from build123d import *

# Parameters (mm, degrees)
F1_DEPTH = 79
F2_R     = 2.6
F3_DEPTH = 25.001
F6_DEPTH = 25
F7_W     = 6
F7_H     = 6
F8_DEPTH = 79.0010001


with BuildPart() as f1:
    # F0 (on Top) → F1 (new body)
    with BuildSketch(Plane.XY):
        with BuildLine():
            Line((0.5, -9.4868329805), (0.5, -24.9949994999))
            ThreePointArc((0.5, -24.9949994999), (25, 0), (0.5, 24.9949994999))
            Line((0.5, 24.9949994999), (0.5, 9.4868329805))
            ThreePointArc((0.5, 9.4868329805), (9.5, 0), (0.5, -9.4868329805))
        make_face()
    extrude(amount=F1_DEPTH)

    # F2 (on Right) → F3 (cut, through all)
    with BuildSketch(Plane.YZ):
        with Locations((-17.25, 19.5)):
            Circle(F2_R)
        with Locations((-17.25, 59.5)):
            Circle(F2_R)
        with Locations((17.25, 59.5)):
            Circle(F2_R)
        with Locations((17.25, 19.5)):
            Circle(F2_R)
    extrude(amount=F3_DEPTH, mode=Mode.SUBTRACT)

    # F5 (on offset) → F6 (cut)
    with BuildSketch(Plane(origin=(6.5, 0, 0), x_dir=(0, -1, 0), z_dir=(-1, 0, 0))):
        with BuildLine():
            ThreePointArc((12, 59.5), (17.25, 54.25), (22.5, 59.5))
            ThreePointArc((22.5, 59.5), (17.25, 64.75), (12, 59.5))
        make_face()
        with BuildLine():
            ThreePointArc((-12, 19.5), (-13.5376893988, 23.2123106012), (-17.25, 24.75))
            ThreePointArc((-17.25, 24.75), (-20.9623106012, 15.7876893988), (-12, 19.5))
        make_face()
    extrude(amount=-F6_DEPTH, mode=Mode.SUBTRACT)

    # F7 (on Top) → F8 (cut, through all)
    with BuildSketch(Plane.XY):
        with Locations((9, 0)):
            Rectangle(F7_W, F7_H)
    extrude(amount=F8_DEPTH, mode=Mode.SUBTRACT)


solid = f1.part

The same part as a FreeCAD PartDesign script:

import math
import FreeCAD as App
import Part
import Sketcher
from FreeCAD import Vector
Q = App.Units.Quantity

doc = App.newDocument("Part")
params = doc.addObject("Spreadsheet::Sheet", "Params")
for row, (alias, value) in enumerate([
    ("sketch1_radius", "25 mm"),
    ("sketch1_radius2", "9.5 mm"),
    ("pad1_length", "79 mm"),
    ("sketch2_diameter", "5.2 mm"),
    ("sketch3_diameter", "10.5 mm"),
    ("pocket2_length", "25 mm"),
    ("sketch4_width", "6 mm"),
], start=1):
    params.set(f"A{row}", alias)
    params.set(f"B{row}", "=" + value)
    params.setAlias(f"B{row}", alias)

body = doc.addObject("PartDesign::Body", "Body")

sketch1 = doc.addObject("Sketcher::SketchObject", "Sketch")
body.addObject(sketch1)
sketch1.AttachmentSupport = (doc.XY_Plane, [""])
sketch1.MapMode = "FlatFace"
sketch1.addGeometry([
    Part.LineSegment(Vector(0, -9, 0), Vector(0, -25, 0)),
    Part.ArcOfCircle(Part.Circle(Vector(0, 0, 0), Vector(0, 0, 1), 25), math.radians(-89), math.radians(89)),
    Part.LineSegment(Vector(0, 25, 0), Vector(0, 9, 0)),
    Part.ArcOfCircle(Part.Circle(Vector(0, 0, 0), Vector(0, 0, 1), 10), math.radians(-87), math.radians(87)),
], False)
sketch1.addConstraint([
    Sketcher.Constraint("Coincident", 0, 2, 1, 1),
    Sketcher.Constraint("Coincident", 1, 2, 2, 1),
    Sketcher.Constraint("Coincident", 2, 2, 3, 2),
    Sketcher.Constraint("Coincident", 3, 1, 0, 1),
    Sketcher.Constraint("Vertical", 0),
    Sketcher.Constraint("Vertical", 2),
    Sketcher.Constraint("Coincident", 1, 3, -1, 1),
    Sketcher.Constraint("Coincident", 3, 3, -1, 1),
    Sketcher.Constraint("Vertical", 0, 2, 1, 2),
    Sketcher.Constraint("Radius", 1, Q("25 mm")),
    Sketcher.Constraint("Radius", 3, Q("9.5 mm")),
    Sketcher.Constraint("DistanceX", -1, 1, 0, 2, Q("0.5 mm")),
])
sketch1.setExpression("Constraints[9]", "Params.sketch1_radius")
sketch1.setExpression("Constraints[10]", "Params.sketch1_radius2")
pad1 = doc.addObject("PartDesign::Pad", "Pad")
body.addObject(pad1)
pad1.Profile = sketch1
pad1.setExpression("Length", "Params.pad1_length")

sketch2 = doc.addObject("Sketcher::SketchObject", "Sketch001")
body.addObject(sketch2)
sketch2.AttachmentSupport = (doc.YZ_Plane, [""])
sketch2.MapMode = "FlatFace"
sketch2.addGeometry([
    Part.Circle(Vector(-17.2, 19.5, 0), Vector(0, 0, 1), 2.6),
    Part.Circle(Vector(-17.2, 59.5, 0), Vector(0, 0, 1), 2.6),
    Part.Circle(Vector(17.2, 59.5, 0), Vector(0, 0, 1), 2.6),
    Part.Circle(Vector(17.2, 19.5, 0), Vector(0, 0, 1), 2.6),
], False)
sketch2.addConstraint([
    Sketcher.Constraint("Equal", 0, 1),
    Sketcher.Constraint("Equal", 1, 2),
    Sketcher.Constraint("Equal", 2, 3),
    Sketcher.Constraint("Symmetric", 1, 3, 2, 3, -2),
    Sketcher.Constraint("Symmetric", 0, 3, 3, 3, -2),
    Sketcher.Constraint("Vertical", 0, 3, 1, 3),
    Sketcher.Constraint("Diameter", 0, Q("5.2 mm")),
    Sketcher.Constraint("DistanceY", 0, 3, 1, 3, Q("40 mm")),
    Sketcher.Constraint("DistanceY", -1, 1, 0, 3, Q("19.5 mm")),
    Sketcher.Constraint("DistanceX", 1, 3, 2, 3, Q("34.5 mm")),
])
sketch2.setExpression("Constraints[6]", "Params.sketch2_diameter")
pocket1 = doc.addObject("PartDesign::Pocket", "Pocket")
body.addObject(pocket1)
pocket1.Profile = sketch2
pocket1.Type = "ThroughAll"
pocket1.Reversed = True

sketch3 = doc.addObject("Sketcher::SketchObject", "Sketch002")
body.addObject(sketch3)
sketch3.AttachmentSupport = (doc.YZ_Plane, [""])
sketch3.MapMode = "FlatFace"
sketch3.AttachmentOffset = App.Placement(Vector(0, 0, 6.5), App.Rotation())
sketch3.addGeometry([
    Part.Circle(Vector(-17, 60, 0), Vector(0, 0, 1), 5),
    Part.ArcOfCircle(Part.Circle(Vector(17, 20, 0), Vector(0, 0, 1), 5), math.radians(90), math.radians(180)),
    Part.ArcOfCircle(Part.Circle(Vector(17, 20, 0), Vector(0, 0, 1), 5), math.radians(180), math.radians(450)),
], False)
sketch3.addConstraint([
    Sketcher.Constraint("Tangent", 1, 1, 2, 2),
    Sketcher.Constraint("Coincident", 2, 1, 1, 2),
    Sketcher.Constraint("Equal", 0, 1),
    Sketcher.Constraint("Horizontal", 1, 3, 2, 1),
    Sketcher.Constraint("Vertical", 2, 3, 1, 1),
    Sketcher.Constraint("Diameter", 0, Q("10.5 mm")),
    Sketcher.Constraint("DistanceX", -1, 1, 2, 1, Q("12 mm")),
    Sketcher.Constraint("DistanceY", 1, 3, 0, 3, Q("40 mm")),
    Sketcher.Constraint("DistanceY", -1, 1, 0, 3, Q("59.5 mm")),
    Sketcher.Constraint("DistanceX", 0, 3, 1, 3, Q("34.5 mm")),
])
sketch3.setExpression("Constraints[5]", "Params.sketch3_diameter")
pocket2 = doc.addObject("PartDesign::Pocket", "Pocket001")
body.addObject(pocket2)
pocket2.Profile = sketch3
pocket2.setExpression("Length", "Params.pocket2_length")
pocket2.Reversed = True

sketch4 = doc.addObject("Sketcher::SketchObject", "Sketch003")
body.addObject(sketch4)
sketch4.AttachmentSupport = (doc.XY_Plane, [""])
sketch4.MapMode = "FlatFace"
sketch4.addGeometry([
    Part.LineSegment(Vector(6, 3, 0), Vector(6, -3, 0)),
    Part.LineSegment(Vector(6, -3, 0), Vector(12, -3, 0)),
    Part.LineSegment(Vector(12, -3, 0), Vector(12, 3, 0)),
    Part.LineSegment(Vector(12, 3, 0), Vector(6, 3, 0)),
], False)
sketch4.addConstraint([
    Sketcher.Constraint("Coincident", 0, 2, 1, 1),
    Sketcher.Constraint("Coincident", 1, 2, 2, 1),
    Sketcher.Constraint("Coincident", 2, 2, 3, 1),
    Sketcher.Constraint("Coincident", 3, 2, 0, 1),
    Sketcher.Constraint("Vertical", 0),
    Sketcher.Constraint("Horizontal", 1),
    Sketcher.Constraint("Vertical", 2),
    Sketcher.Constraint("Horizontal", 3),
    Sketcher.Constraint("Equal", 3, 0),
    Sketcher.Constraint("DistanceX", 1, 1, 1, 2, Q("6 mm")),
    Sketcher.Constraint("DistanceX", -1, 1, 0, 2, Q("6 mm")),
    Sketcher.Constraint("DistanceY", 0, 2, -1, 1, Q("3 mm")),
])
sketch4.setExpression("Constraints[9]", "Params.sketch4_width")
pocket3 = doc.addObject("PartDesign::Pocket", "Pocket002")
body.addObject(pocket3)
pocket3.Profile = sketch4
pocket3.Type = "ThroughAll"
pocket3.Reversed = True

doc.recompute()
